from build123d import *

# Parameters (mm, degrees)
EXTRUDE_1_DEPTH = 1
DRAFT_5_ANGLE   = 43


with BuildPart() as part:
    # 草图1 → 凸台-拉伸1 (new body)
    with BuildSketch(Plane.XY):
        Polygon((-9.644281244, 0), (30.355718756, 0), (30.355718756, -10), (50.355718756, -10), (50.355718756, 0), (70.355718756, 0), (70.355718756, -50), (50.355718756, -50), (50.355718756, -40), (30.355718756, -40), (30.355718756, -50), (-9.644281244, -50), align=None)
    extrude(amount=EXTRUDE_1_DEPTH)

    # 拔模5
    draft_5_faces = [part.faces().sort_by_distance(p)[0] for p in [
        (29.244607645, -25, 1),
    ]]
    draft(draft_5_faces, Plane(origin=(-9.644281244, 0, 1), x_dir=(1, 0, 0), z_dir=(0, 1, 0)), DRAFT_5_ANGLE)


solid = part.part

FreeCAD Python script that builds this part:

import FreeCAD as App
import Part
import Sketcher
from FreeCAD import Vector
Q = App.Units.Quantity


def faces_at(feature, points):
    """Names of the faces that lie closest to the given points."""
    faces = feature.Shape.Faces
    near = lambda p: min(range(len(faces)), key=lambda i: faces[i].distToShape(Part.Vertex(*p))[0])
    return sorted({f"Face{near(p) + 1}" for p in points})

doc = App.newDocument("Part")
body = doc.addObject("PartDesign::Body", "Body")

sketch1 = doc.addObject("Sketcher::SketchObject", "Sketch")
body.addObject(sketch1)
sketch1.AttachmentSupport = (doc.XY_Plane, [""])
sketch1.MapMode = "FlatFace"
sketch1.addGeometry([
    Part.LineSegment(Vector(30, 0, 0), Vector(-10, 0, 0)),
    Part.LineSegment(Vector(-10, 0, 0), Vector(-10, -50, 0)),
    Part.LineSegment(Vector(-10, -50, 0), Vector(30, -50, 0)),
    Part.LineSegment(Vector(30, -50, 0), Vector(30, -40, 0)),
    Part.LineSegment(Vector(30, -40, 0), Vector(50, -40, 0)),
    Part.LineSegment(Vector(50, -40, 0), Vector(50, -50, 0)),
    Part.LineSegment(Vector(50, -50, 0), Vector(70, -50, 0)),
    Part.LineSegment(Vector(70, -50, 0), Vector(70, 0, 0)),
    Part.LineSegment(Vector(70, 0, 0), Vector(50, 0, 0)),
    Part.LineSegment(Vector(50, 0, 0), Vector(50, -10, 0)),
    Part.LineSegment(Vector(50, -10, 0), Vector(30, -10, 0)),
    Part.LineSegment(Vector(30, -10, 0), Vector(30, 0, 0)),
], False)
sketch1.addConstraint([
    Sketcher.Constraint("Coincident", 0, 2, 1, 1),
    Sketcher.Constraint("Coincident", 1, 2, 2, 1),
    Sketcher.Constraint("Coincident", 2, 2, 3, 1),
    Sketcher.Constraint("Coincident", 3, 2, 4, 1),
    Sketcher.Constraint("Coincident", 4, 2, 5, 1),
    Sketcher.Constraint("Coincident", 5, 2, 6, 1),
    Sketcher.Constraint("Coincident", 6, 2, 7, 1),
    Sketcher.Constraint("Coincident", 7, 2, 8, 1),
    Sketcher.Constraint("Coincident", 8, 2, 9, 1),
    Sketcher.Constraint("Coincident", 9, 2, 10, 1),
    Sketcher.Constraint("Coincident", 10, 2, 11, 1),
    Sketcher.Constraint("Coincident", 11, 2, 0, 1),
    Sketcher.Constraint("Horizontal", 0),
    Sketcher.Constraint("Vertical", 1),
    Sketcher.Constraint("Horizontal", 2),
    Sketcher.Constraint("Vertical", 3),
    Sketcher.Constraint("Horizontal", 4),
    Sketcher.Constraint("Vertical", 5),
    Sketcher.Constraint("Horizontal", 6),
    Sketcher.Constraint("Vertical", 7),
    Sketcher.Constraint("Horizontal", 8),
    Sketcher.Constraint("Vertical", 9),
    Sketcher.Constraint("Horizontal", 10),
    Sketcher.Constraint("Vertical", 11),
    Sketcher.Constraint("PointOnObject", 0, 2, -1),
    Sketcher.Constraint("PointOnObject", 7, 2, -1),
    Sketcher.Constraint("Horizontal", 2, 2, 5, 2),
    Sketcher.Constraint("Vertical", 5, 2, 8, 2),
    Sketcher.Constraint("Vertical", 3, 2, 10, 2),
    Sketcher.Constraint("Equal", 4, 6),
    Sketcher.Constraint("Equal", 5, 9),
    Sketcher.Constraint("DistanceX", 0, 2, 0, 1, Q("40 mm")),
    Sketcher.Constraint("DistanceX", 4, 1, 4, 2, Q("20 mm")),
    Sketcher.Constraint("DistanceY", 1, 2, 1, 1, Q("50 mm")),
    Sketcher.Constraint("DistanceY", 3, 1, 3, 2, Q("10 mm")),
    Sketcher.Constraint("DistanceX", 0, 2, -1, 1, Q("9.644281 mm")),
])
pad1 = doc.addObject("PartDesign::Pad", "Pad")
body.addObject(pad1)
pad1.Profile = sketch1
pad1.Length = 1
doc.recompute()

draft = doc.addObject("PartDesign::Draft", "Draft")
body.addObject(draft)
draft.Base = (pad1, faces_at(pad1, [(30.356, -25, 1)]))
draft.NeutralPlane = (doc.XZ_Plane, [""])
draft.Angle = 43
draft.Reversed = True

doc.recompute()
